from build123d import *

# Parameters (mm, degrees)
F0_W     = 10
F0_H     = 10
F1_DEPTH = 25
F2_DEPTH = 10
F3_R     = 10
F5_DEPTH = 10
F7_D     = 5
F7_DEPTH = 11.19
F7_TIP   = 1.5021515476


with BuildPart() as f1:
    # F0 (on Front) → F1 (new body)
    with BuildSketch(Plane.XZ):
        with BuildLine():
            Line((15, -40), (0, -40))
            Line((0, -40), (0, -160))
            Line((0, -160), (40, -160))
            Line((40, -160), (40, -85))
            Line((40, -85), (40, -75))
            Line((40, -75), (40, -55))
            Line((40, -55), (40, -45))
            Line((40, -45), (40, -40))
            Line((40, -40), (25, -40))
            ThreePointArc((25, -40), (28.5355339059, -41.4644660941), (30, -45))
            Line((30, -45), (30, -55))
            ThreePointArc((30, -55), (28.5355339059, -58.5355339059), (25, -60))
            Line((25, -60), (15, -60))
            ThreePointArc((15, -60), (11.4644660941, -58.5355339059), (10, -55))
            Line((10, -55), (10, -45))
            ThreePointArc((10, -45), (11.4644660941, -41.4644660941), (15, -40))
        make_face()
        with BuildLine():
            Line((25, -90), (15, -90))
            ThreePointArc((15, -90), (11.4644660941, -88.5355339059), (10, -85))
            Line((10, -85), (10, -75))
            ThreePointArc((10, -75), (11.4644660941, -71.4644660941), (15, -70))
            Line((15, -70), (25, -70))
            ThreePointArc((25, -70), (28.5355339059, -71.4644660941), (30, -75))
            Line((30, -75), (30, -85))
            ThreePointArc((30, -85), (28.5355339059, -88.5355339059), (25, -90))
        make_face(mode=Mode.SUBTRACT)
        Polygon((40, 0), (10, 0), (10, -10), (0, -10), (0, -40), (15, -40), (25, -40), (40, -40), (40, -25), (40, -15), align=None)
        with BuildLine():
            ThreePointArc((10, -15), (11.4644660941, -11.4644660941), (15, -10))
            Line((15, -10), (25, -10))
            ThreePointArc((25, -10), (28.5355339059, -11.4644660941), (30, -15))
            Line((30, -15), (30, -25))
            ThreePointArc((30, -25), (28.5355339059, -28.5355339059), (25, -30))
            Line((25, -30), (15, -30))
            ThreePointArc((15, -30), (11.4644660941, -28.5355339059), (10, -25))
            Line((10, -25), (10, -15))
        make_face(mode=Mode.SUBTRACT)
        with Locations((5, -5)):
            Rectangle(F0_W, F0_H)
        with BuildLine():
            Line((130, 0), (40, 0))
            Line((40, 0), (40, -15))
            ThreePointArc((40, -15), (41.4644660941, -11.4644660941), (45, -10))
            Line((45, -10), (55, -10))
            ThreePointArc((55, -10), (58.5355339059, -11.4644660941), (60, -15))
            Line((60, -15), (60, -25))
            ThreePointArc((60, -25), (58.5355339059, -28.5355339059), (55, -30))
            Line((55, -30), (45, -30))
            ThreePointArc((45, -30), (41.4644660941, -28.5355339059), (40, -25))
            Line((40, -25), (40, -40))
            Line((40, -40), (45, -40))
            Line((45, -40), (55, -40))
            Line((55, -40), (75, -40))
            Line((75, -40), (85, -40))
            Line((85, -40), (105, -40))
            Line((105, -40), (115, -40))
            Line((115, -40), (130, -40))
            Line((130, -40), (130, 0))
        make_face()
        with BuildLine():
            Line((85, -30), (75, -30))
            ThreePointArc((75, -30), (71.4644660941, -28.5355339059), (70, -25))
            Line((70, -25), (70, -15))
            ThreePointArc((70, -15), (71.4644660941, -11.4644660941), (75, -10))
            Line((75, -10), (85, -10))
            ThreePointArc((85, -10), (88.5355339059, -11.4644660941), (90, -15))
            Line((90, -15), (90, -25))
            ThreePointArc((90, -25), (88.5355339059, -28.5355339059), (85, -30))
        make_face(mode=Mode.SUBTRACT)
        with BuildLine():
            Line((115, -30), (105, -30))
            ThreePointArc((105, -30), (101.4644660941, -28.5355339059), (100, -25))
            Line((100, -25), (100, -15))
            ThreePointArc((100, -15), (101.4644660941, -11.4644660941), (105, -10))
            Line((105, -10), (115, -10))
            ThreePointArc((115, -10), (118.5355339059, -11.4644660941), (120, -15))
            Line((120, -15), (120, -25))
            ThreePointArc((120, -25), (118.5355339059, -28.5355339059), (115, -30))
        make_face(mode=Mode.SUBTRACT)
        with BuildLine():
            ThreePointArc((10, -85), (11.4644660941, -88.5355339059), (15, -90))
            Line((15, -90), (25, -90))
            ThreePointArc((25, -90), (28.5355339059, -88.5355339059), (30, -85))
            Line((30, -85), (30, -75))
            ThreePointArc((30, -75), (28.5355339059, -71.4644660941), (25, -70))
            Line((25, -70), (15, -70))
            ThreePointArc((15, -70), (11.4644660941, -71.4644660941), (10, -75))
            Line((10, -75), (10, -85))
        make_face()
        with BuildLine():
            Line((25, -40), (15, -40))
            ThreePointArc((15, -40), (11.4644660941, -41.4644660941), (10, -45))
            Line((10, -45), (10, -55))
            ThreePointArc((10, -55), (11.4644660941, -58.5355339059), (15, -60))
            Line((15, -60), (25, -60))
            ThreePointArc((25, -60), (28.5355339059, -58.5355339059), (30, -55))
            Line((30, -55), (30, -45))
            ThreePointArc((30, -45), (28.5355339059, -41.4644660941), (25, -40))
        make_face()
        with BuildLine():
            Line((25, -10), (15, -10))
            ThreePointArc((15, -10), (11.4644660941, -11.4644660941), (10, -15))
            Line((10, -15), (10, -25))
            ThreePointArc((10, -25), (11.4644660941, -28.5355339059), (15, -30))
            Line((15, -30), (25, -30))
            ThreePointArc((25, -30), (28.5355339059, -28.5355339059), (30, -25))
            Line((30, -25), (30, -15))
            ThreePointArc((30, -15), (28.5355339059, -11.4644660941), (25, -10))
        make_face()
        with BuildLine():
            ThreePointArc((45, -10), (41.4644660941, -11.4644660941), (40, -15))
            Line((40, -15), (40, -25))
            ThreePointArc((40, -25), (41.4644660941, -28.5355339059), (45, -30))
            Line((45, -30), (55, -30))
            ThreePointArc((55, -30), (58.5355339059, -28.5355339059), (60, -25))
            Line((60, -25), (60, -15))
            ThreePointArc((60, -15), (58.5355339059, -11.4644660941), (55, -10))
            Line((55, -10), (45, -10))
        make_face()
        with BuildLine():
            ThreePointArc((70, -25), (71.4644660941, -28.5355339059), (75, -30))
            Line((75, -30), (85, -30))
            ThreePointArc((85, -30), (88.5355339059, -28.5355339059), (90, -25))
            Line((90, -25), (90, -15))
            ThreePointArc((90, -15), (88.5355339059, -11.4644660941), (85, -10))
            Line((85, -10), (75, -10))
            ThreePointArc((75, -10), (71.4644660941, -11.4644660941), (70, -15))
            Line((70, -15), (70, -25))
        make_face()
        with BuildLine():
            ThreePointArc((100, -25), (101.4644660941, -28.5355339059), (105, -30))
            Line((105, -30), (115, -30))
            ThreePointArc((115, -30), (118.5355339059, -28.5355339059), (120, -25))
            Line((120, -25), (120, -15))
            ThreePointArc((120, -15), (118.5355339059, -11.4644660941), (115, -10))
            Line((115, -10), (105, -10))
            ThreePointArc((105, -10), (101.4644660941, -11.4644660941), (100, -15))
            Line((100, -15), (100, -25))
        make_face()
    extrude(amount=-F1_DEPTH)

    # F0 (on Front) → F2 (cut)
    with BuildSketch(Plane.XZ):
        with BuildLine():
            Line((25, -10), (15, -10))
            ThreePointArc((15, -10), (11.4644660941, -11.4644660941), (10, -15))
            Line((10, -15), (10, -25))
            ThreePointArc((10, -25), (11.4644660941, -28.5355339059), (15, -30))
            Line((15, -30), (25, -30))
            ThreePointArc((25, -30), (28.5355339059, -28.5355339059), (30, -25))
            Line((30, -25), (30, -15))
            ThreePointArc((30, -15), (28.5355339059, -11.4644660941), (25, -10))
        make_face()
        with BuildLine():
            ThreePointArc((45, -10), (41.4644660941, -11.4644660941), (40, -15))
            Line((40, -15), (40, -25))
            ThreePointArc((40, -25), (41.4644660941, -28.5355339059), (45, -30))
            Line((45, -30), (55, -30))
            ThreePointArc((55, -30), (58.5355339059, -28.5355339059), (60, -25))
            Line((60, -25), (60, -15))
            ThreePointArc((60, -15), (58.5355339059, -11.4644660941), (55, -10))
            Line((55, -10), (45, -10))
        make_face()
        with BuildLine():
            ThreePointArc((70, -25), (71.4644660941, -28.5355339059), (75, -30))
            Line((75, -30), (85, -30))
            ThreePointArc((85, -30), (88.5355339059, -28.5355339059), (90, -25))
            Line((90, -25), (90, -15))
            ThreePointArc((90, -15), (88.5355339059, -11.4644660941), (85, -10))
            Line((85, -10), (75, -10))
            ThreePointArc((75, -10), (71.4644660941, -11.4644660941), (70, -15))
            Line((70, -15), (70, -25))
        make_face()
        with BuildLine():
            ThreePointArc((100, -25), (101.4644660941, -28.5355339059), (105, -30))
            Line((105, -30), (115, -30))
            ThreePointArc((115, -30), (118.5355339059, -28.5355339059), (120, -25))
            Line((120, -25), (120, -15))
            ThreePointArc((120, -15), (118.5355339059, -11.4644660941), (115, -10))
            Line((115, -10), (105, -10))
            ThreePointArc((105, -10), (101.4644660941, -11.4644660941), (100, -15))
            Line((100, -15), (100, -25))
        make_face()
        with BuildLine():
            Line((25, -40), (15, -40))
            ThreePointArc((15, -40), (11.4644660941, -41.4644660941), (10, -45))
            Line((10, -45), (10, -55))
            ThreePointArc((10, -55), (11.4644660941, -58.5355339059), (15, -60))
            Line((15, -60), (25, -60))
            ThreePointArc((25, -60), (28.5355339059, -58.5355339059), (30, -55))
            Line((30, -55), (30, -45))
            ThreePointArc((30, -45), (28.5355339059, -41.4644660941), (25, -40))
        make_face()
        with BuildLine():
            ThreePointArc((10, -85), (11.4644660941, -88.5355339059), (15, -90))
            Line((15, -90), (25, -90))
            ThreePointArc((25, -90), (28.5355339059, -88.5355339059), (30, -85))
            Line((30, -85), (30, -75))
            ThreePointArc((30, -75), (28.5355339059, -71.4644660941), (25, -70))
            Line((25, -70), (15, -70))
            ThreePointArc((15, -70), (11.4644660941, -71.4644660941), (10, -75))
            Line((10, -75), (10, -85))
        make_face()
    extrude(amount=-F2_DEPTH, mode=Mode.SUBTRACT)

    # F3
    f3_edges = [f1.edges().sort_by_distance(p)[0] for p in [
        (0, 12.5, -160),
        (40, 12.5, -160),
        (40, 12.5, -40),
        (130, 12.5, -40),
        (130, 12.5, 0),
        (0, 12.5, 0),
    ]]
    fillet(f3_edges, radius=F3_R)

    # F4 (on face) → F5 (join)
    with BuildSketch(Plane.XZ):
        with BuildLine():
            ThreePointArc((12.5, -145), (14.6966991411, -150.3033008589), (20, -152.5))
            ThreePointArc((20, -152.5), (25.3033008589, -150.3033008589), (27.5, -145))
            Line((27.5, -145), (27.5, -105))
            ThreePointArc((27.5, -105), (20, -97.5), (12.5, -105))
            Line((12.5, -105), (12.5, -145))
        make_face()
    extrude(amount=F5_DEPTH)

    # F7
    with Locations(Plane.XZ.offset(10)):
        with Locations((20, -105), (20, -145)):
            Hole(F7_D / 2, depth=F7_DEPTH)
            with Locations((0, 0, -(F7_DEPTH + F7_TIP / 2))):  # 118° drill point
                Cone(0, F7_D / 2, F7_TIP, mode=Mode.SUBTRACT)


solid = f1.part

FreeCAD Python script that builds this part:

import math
import FreeCAD as App
import Part
import Sketcher

V = App.Vector
Q = App.Units.Quantity


def edges_at(feature, points):
    """Names of the edges that pass closest to the given points."""
    edges = feature.Shape.Edges
    near = lambda p: min(range(len(edges)), key=lambda i: edges[i].distToShape(Part.Vertex(*p))[0])
    return sorted({f"Edge{near(p) + 1}" for p in points})

doc = App.newDocument("Part")
body = doc.addObject("PartDesign::Body", "Body")

sketch1 = doc.addObject("Sketcher::SketchObject", "Sketch")
body.addObject(sketch1)
sketch1.AttachmentSupport = (doc.XZ_Plane, [""])
sketch1.MapMode = "FlatFace"
sketch1.addGeometry(Part.LineSegment(V(0, -160, 0), V(40, -160, 0)), False)
sketch1.addGeometry(Part.LineSegment(V(40, -160, 0), V(40, -40, 0)), False)
sketch1.addGeometry(Part.LineSegment(V(40, -40, 0), V(130, -40, 0)), False)
sketch1.addGeometry(Part.LineSegment(V(130, -40, 0), V(130, 0, 0)), False)
sketch1.addGeometry(Part.LineSegment(V(130, 0, 0), V(0, 0, 0)), False)
sketch1.addGeometry(Part.LineSegment(V(0, 0, 0), V(0, -160, 0)), False)
sketch1.addConstraint(Sketcher.Constraint("Coincident", 0, 2, 1, 1))
sketch1.addConstraint(Sketcher.Constraint("Coincident", 1, 2, 2, 1))
sketch1.addConstraint(Sketcher.Constraint("Coincident", 2, 2, 3, 1))
sketch1.addConstraint(Sketcher.Constraint("Coincident", 3, 2, 4, 1))
sketch1.addConstraint(Sketcher.Constraint("Coincident", 4, 2, 5, 1))
sketch1.addConstraint(Sketcher.Constraint("Coincident", 5, 2, 0, 1))
sketch1.addConstraint(Sketcher.Constraint("Horizontal", 0))
sketch1.addConstraint(Sketcher.Constraint("Vertical", 1))
sketch1.addConstraint(Sketcher.Constraint("Horizontal", 2))
sketch1.addConstraint(Sketcher.Constraint("Vertical", 3))
sketch1.addConstraint(Sketcher.Constraint("Horizontal", 4))
sketch1.addConstraint(Sketcher.Constraint("Vertical", 5))
sketch1.addConstraint(Sketcher.Constraint("Coincident", 4, 2, -1, 1))
sketch1.addConstraint(Sketcher.Constraint("Equal", 0, 3))
sketch1.addConstraint(Sketcher.Constraint("DistanceX", 0, 1, 0, 2, Q("40 mm")))
sketch1.addConstraint(Sketcher.Constraint("DistanceX", 2, 1, 2, 2, Q("90 mm")))
sketch1.addConstraint(Sketcher.Constraint("DistanceY", 1, 1, 1, 2, Q("120 mm")))
pad1 = doc.addObject("PartDesign::Pad", "Pad")
body.addObject(pad1)
pad1.Profile = sketch1
pad1.Length = 25
pad1.Reversed = True

sketch2 = doc.addObject("Sketcher::SketchObject", "Sketch001")
body.addObject(sketch2)
sketch2.AttachmentSupport = (doc.XZ_Plane, [""])
sketch2.MapMode = "FlatFace"
sketch2.addGeometry(Part.LineSegment(V(25, -10, 0), V(15, -10, 0)), False)
sketch2.addGeometry(Part.ArcOfCircle(Part.Circle(V(15, -15, 0), V(0, 0, 1), 5), math.radians(90), math.radians(180)), False)
sketch2.addGeometry(Part.LineSegment(V(10, -15, 0), V(10, -25, 0)), False)
sketch2.addGeometry(Part.ArcOfCircle(Part.Circle(V(15, -25, 0), V(0, 0, 1), 5), math.radians(180), math.radians(270)), False)
sketch2.addGeometry(Part.LineSegment(V(15, -30, 0), V(25, -30, 0)), False)
sketch2.addGeometry(Part.ArcOfCircle(Part.Circle(V(25, -25, 0), V(0, 0, 1), 5), math.radians(-90), math.radians(0)), False)
sketch2.addGeometry(Part.LineSegment(V(30, -25, 0), V(30, -15, 0)), False)
sketch2.addGeometry(Part.ArcOfCircle(Part.Circle(V(25, -15, 0), V(0, 0, 1), 5), math.radians(0), math.radians(90)), False)
sketch2.addGeometry(Part.ArcOfCircle(Part.Circle(V(45, -15, 0), V(0, 0, 1), 5), math.radians(90), math.radians(180)), False)
sketch2.addGeometry(Part.LineSegment(V(40, -15, 0), V(40, -25, 0)), False)
sketch2.addGeometry(Part.ArcOfCircle(Part.Circle(V(45, -25, 0), V(0, 0, 1), 5), math.radians(180), math.radians(270)), False)
sketch2.addGeometry(Part.LineSegment(V(45, -30, 0), V(55, -30, 0)), False)
sketch2.addGeometry(Part.ArcOfCircle(Part.Circle(V(55, -25, 0), V(0, 0, 1), 5), math.radians(-90), math.radians(0)), False)
sketch2.addGeometry(Part.LineSegment(V(60, -25, 0), V(60, -15, 0)), False)
sketch2.addGeometry(Part.ArcOfCircle(Part.Circle(V(55, -15, 0), V(0, 0, 1), 5), math.radians(0), math.radians(90)), False)
sketch2.addGeometry(Part.LineSegment(V(55, -10, 0), V(45, -10, 0)), False)
sketch2.addGeometry(Part.ArcOfCircle(Part.Circle(V(75, -25, 0), V(0, 0, 1), 5), math.radians(180), math.radians(270)), False)
sketch2.addGeometry(Part.LineSegment(V(75, -30, 0), V(85, -30, 0)), False)
sketch2.addGeometry(Part.ArcOfCircle(Part.Circle(V(85, -25, 0), V(0, 0, 1), 5), math.radians(-90), math.radians(0)), False)
sketch2.addGeometry(Part.LineSegment(V(90, -25, 0), V(90, -15, 0)), False)
sketch2.addGeometry(Part.ArcOfCircle(Part.Circle(V(85, -15, 0), V(0, 0, 1), 5), math.radians(0), math.radians(90)), False)
sketch2.addGeometry(Part.LineSegment(V(85, -10, 0), V(75, -10, 0)), False)
sketch2.addGeometry(Part.ArcOfCircle(Part.Circle(V(75, -15, 0), V(0, 0, 1), 5), math.radians(90), math.radians(180)), False)
sketch2.addGeometry(Part.LineSegment(V(70, -15, 0), V(70, -25, 0)), False)
sketch2.addGeometry(Part.ArcOfCircle(Part.Circle(V(105, -25, 0), V(0, 0, 1), 5), math.radians(180), math.radians(270)), False)
sketch2.addGeometry(Part.LineSegment(V(105, -30, 0), V(115, -30, 0)), False)
sketch2.addGeometry(Part.ArcOfCircle(Part.Circle(V(115, -25, 0), V(0, 0, 1), 5), math.radians(-90), math.radians(0)), False)
sketch2.addGeometry(Part.LineSegment(V(120, -25, 0), V(120, -15, 0)), False)
sketch2.addGeometry(Part.ArcOfCircle(Part.Circle(V(115, -15, 0), V(0, 0, 1), 5), math.radians(0), math.radians(90)), False)
sketch2.addGeometry(Part.LineSegment(V(115, -10, 0), V(105, -10, 0)), False)
sketch2.addGeometry(Part.ArcOfCircle(Part.Circle(V(105, -15, 0), V(0, 0, 1), 5), math.radians(90), math.radians(180)), False)
sketch2.addGeometry(Part.LineSegment(V(100, -15, 0), V(100, -25, 0)), False)
sketch2.addGeometry(Part.LineSegment(V(25, -40, 0), V(15, -40, 0)), False)
sketch2.addGeometry(Part.ArcOfCircle(Part.Circle(V(15, -45, 0), V(0, 0, 1), 5), math.radians(90), math.radians(180)), False)
sketch2.addGeometry(Part.LineSegment(V(10, -45, 0), V(10, -55, 0)), False)
sketch2.addGeometry(Part.ArcOfCircle(Part.Circle(V(15, -55, 0), V(0, 0, 1), 5), math.radians(180), math.radians(270)), False)
sketch2.addGeometry(Part.LineSegment(V(15, -60, 0), V(25, -60, 0)), False)
sketch2.addGeometry(Part.ArcOfCircle(Part.Circle(V(25, -55, 0), V(0, 0, 1), 5), math.radians(-90), math.radians(0)), False)
sketch2.addGeometry(Part.LineSegment(V(30, -55, 0), V(30, -45, 0)), False)
sketch2.addGeometry(Part.ArcOfCircle(Part.Circle(V(25, -45, 0), V(0, 0, 1), 5), math.radians(0), math.radians(90)), False)
sketch2.addGeometry(Part.ArcOfCircle(Part.Circle(V(15, -85, 0), V(0, 0, 1), 5), math.radians(180), math.radians(270)), False)
sketch2.addGeometry(Part.LineSegment(V(15, -90, 0), V(25, -90, 0)), False)
sketch2.addGeometry(Part.ArcOfCircle(Part.Circle(V(25, -85, 0), V(0, 0, 1), 5), math.radians(-90), math.radians(0)), False)
sketch2.addGeometry(Part.LineSegment(V(30, -85, 0), V(30, -75, 0)), False)
sketch2.addGeometry(Part.ArcOfCircle(Part.Circle(V(25, -75, 0), V(0, 0, 1), 5), math.radians(0), math.radians(90)), False)
sketch2.addGeometry(Part.LineSegment(V(25, -70, 0), V(15, -70, 0)), False)
sketch2.addGeometry(Part.ArcOfCircle(Part.Circle(V(15, -75, 0), V(0, 0, 1), 5), math.radians(90), math.radians(180)), False)
sketch2.addGeometry(Part.LineSegment(V(10, -75, 0), V(10, -85, 0)), False)
sketch2.addConstraint(Sketcher.Constraint("Tangent", 0, 2, 1, 1))
sketch2.addConstraint(Sketcher.Constraint("Tangent", 1, 2, 2, 1))
sketch2.addConstraint(Sketcher.Constraint("Tangent", 2, 2, 3, 1))
sketch2.addConstraint(Sketcher.Constraint("Tangent", 3, 2, 4, 1))
sketch2.addConstraint(Sketcher.Constraint("Tangent", 4, 2, 5, 1))
sketch2.addConstraint(Sketcher.Constraint("Tangent", 5, 2, 6, 1))
sketch2.addConstraint(Sketcher.Constraint("Tangent", 6, 2, 7, 1))
sketch2.addConstraint(Sketcher.Constraint("Tangent", 7, 2, 0, 1))
sketch2.addConstraint(Sketcher.Constraint("Tangent", 8, 2, 9, 1))
sketch2.addConstraint(Sketcher.Constraint("Tangent", 9, 2, 10, 1))
sketch2.addConstraint(Sketcher.Constraint("Tangent", 10, 2, 11, 1))
sketch2.addConstraint(Sketcher.Constraint("Tangent", 11, 2, 12, 1))
sketch2.addConstraint(Sketcher.Constraint("Tangent", 12, 2, 13, 1))
sketch2.addConstraint(Sketcher.Constraint("Tangent", 13, 2, 14, 1))
sketch2.addConstraint(Sketcher.Constraint("Tangent", 14, 2, 15, 1))
sketch2.addConstraint(Sketcher.Constraint("Tangent", 15, 2, 8, 1))
sketch2.addConstraint(Sketcher.Constraint("Tangent", 16, 2, 17, 1))
sketch2.addConstraint(Sketcher.Constraint("Tangent", 17, 2, 18, 1))
sketch2.addConstraint(Sketcher.Constraint("Tangent", 18, 2, 19, 1))
sketch2.addConstraint(Sketcher.Constraint("Tangent", 19, 2, 20, 1))
sketch2.addConstraint(Sketcher.Constraint("Tangent", 20, 2, 21, 1))
sketch2.addConstraint(Sketcher.Constraint("Tangent", 21, 2, 22, 1))
sketch2.addConstraint(Sketcher.Constraint("Tangent", 22, 2, 23, 1))
sketch2.addConstraint(Sketcher.Constraint("Tangent", 23, 2, 16, 1))
sketch2.addConstraint(Sketcher.Constraint("Tangent", 24, 2, 25, 1))
sketch2.addConstraint(Sketcher.Constraint("Tangent", 25, 2, 26, 1))
sketch2.addConstraint(Sketcher.Constraint("Tangent", 26, 2, 27, 1))
sketch2.addConstraint(Sketcher.Constraint("Tangent", 27, 2, 28, 1))
sketch2.addConstraint(Sketcher.Constraint("Tangent", 28, 2, 29, 1))
sketch2.addConstraint(Sketcher.Constraint("Tangent", 29, 2, 30, 1))
sketch2.addConstraint(Sketcher.Constraint("Tangent", 30, 2, 31, 1))
sketch2.addConstraint(Sketcher.Constraint("Tangent", 31, 2, 24, 1))
sketch2.addConstraint(Sketcher.Constraint("Tangent", 32, 2, 33, 1))
sketch2.addConstraint(Sketcher.Constraint("Tangent", 33, 2, 34, 1))
sketch2.addConstraint(Sketcher.Constraint("Tangent", 34, 2, 35, 1))
sketch2.addConstraint(Sketcher.Constraint("Tangent", 35, 2, 36, 1))
sketch2.addConstraint(Sketcher.Constraint("Tangent", 36, 2, 37, 1))
sketch2.addConstraint(Sketcher.Constraint("Tangent", 37, 2, 38, 1))
sketch2.addConstraint(Sketcher.Constraint("Tangent", 38, 2, 39, 1))
sketch2.addConstraint(Sketcher.Constraint("Tangent", 39, 2, 32, 1))
sketch2.addConstraint(Sketcher.Constraint("Tangent", 40, 2, 41, 1))
sketch2.addConstraint(Sketcher.Constraint("Tangent", 41, 2, 42, 1))
sketch2.addConstraint(Sketcher.Constraint("Tangent", 42, 2, 43, 1))
sketch2.addConstraint(Sketcher.Constraint("Tangent", 43, 2, 44, 1))
sketch2.addConstraint(Sketcher.Constraint("Tangent", 44, 2, 45, 1))
sketch2.addConstraint(Sketcher.Constraint("Tangent", 45, 2, 46, 1))
sketch2.addConstraint(Sketcher.Constraint("Tangent", 46, 2, 47, 1))
sketch2.addConstraint(Sketcher.Constraint("Tangent", 47, 2, 40, 1))
sketch2.addConstraint(Sketcher.Constraint("Horizontal", 0))
sketch2.addConstraint(Sketcher.Constraint("Vertical", 2))
sketch2.addConstraint(Sketcher.Constraint("Horizontal", 4))
sketch2.addConstraint(Sketcher.Constraint("Vertical", 6))
sketch2.addConstraint(Sketcher.Constraint("Vertical", 9))
sketch2.addConstraint(Sketcher.Constraint("Horizontal", 11))
sketch2.addConstraint(Sketcher.Constraint("Vertical", 13))
sketch2.addConstraint(Sketcher.Constraint("Horizontal", 15))
sketch2.addConstraint(Sketcher.Constraint("Horizontal", 17))
sketch2.addConstraint(Sketcher.Constraint("Vertical", 19))
sketch2.addConstraint(Sketcher.Constraint("Horizontal", 21))
sketch2.addConstraint(Sketcher.Constraint("Vertical", 23))
sketch2.addConstraint(Sketcher.Constraint("Horizontal", 25))
sketch2.addConstraint(Sketcher.Constraint("Vertical", 27))
sketch2.addConstraint(Sketcher.Constraint("Horizontal", 29))
sketch2.addConstraint(Sketcher.Constraint("Vertical", 31))
sketch2.addConstraint(Sketcher.Constraint("Horizontal", 32))
sketch2.addConstraint(Sketcher.Constraint("Vertical", 34))
sketch2.addConstraint(Sketcher.Constraint("Horizontal", 36))
sketch2.addConstraint(Sketcher.Constraint("Vertical", 38))
sketch2.addConstraint(Sketcher.Constraint("Horizontal", 41))
sketch2.addConstraint(Sketcher.Constraint("Vertical", 43))
sketch2.addConstraint(Sketcher.Constraint("Horizontal", 45))
sketch2.addConstraint(Sketcher.Constraint("Vertical", 47))
sketch2.addConstraint(Sketcher.Constraint("Equal", 1, 3))
sketch2.addConstraint(Sketcher.Constraint("Equal", 3, 5))
sketch2.addConstraint(Sketcher.Constraint("Equal", 5, 7))
sketch2.addConstraint(Sketcher.Constraint("Equal", 7, 8))
sketch2.addConstraint(Sketcher.Constraint("Equal", 8, 10))
sketch2.addConstraint(Sketcher.Constraint("Equal", 10, 12))
sketch2.addConstraint(Sketcher.Constraint("Equal", 12, 14))
sketch2.addConstraint(Sketcher.Constraint("Equal", 14, 16))
sketch2.addConstraint(Sketcher.Constraint("Equal", 16, 18))
sketch2.addConstraint(Sketcher.Constraint("Equal", 18, 20))
sketch2.addConstraint(Sketcher.Constraint("Equal", 20, 22))
sketch2.addConstraint(Sketcher.Constraint("Equal", 22, 24))
sketch2.addConstraint(Sketcher.Constraint("Equal", 24, 26))
sketch2.addConstraint(Sketcher.Constraint("Equal", 26, 28))
sketch2.addConstraint(Sketcher.Constraint("Equal", 28, 30))
sketch2.addConstraint(Sketcher.Constraint("Equal", 30, 33))
sketch2.addConstraint(Sketcher.Constraint("Equal", 33, 35))
sketch2.addConstraint(Sketcher.Constraint("Equal", 35, 37))
sketch2.addConstraint(Sketcher.Constraint("Equal", 37, 39))
sketch2.addConstraint(Sketcher.Constraint("Equal", 39, 40))
sketch2.addConstraint(Sketcher.Constraint("Equal", 40, 42))
sketch2.addConstraint(Sketcher.Constraint("Equal", 42, 44))
sketch2.addConstraint(Sketcher.Constraint("Equal", 44, 46))
sketch2.addConstraint(Sketcher.Constraint("Horizontal", 7, 3, 8, 3))
sketch2.addConstraint(Sketcher.Constraint("Horizontal", 5, 3, 10, 3))
sketch2.addConstraint(Sketcher.Constraint("Horizontal", 12, 3, 16, 3))
sketch2.addConstraint(Sketcher.Constraint("Horizontal", 14, 3, 20, 3))
sketch2.addConstraint(Sketcher.Constraint("Horizontal", 18, 3, 24, 3))
sketch2.addConstraint(Sketcher.Constraint("Horizontal", 22, 3, 28, 3))
sketch2.addConstraint(Sketcher.Constraint("Vertical", 3, 3, 33, 3))
sketch2.addConstraint(Sketcher.Constraint("Vertical", 7, 3, 37, 3))
sketch2.addConstraint(Sketcher.Constraint("Vertical", 35, 3, 40, 3))
sketch2.addConstraint(Sketcher.Constraint("Vertical", 39, 3, 42, 3))
sketch2.addConstraint(Sketcher.Constraint("Equal", 4, 11))
sketch2.addConstraint(Sketcher.Constraint("Equal", 15, 17))
sketch2.addConstraint(Sketcher.Constraint("Equal", 21, 25))
sketch2.addConstraint(Sketcher.Constraint("Equal", 45, 2))
sketch2.addConstraint(Sketcher.Constraint("Equal", 31, 34))
sketch2.addConstraint(Sketcher.Constraint("Equal", 38, 43))
sketch2.addConstraint(Sketcher.Constraint("Radius", 1, Q("5 mm")))
sketch2.addConstraint(Sketcher.Constraint("DistanceX", 0, 2, 0, 1, Q("10 mm")))
sketch2.addConstraint(Sketcher.Constraint("DistanceX", -1, 1, 1, 3, Q("15 mm")))
sketch2.addConstraint(Sketcher.Constraint("DistanceY", 1, 3, -1, 1, Q("15 mm")))
sketch2.addConstraint(Sketcher.Constraint("DistanceX", -1, 1, 8, 3, Q("45 mm")))
sketch2.addConstraint(Sketcher.Constraint("DistanceX", -1, 1, 16, 3, Q("75 mm")))
sketch2.addConstraint(Sketcher.Constraint("DistanceX", -1, 1, 24, 3, Q("105 mm")))
sketch2.addConstraint(Sketcher.Constraint("DistanceY", 33, 3, -1, 1, Q("45 mm")))
sketch2.addConstraint(Sketcher.Constraint("DistanceY", 40, 3, -1, 1, Q("85 mm")))
pocket1 = doc.addObject("PartDesign::Pocket", "Pocket")
body.addObject(pocket1)
pocket1.Profile = sketch2
pocket1.Length = 10
doc.recompute()

fillet = doc.addObject("PartDesign::Fillet", "Fillet")
body.addObject(fillet)
fillet.Base = (pocket1, edges_at(pocket1, [
    (0, 12.5, -160),
    (40, 12.5, -160),
    (40, 12.5, -40),
    (130, 12.5, -40),
    (130, 12.5, 0),
    (0, 12.5, 0),
]))
fillet.Radius = 10

sketch3 = doc.addObject("Sketcher::SketchObject", "Sketch002")
body.addObject(sketch3)
sketch3.AttachmentSupport = (doc.XZ_Plane, [""])
sketch3.MapMode = "FlatFace"
sketch3.addGeometry(Part.ArcOfCircle(Part.Circle(V(20, -145, 0), V(0, 0, 1), 7.5), math.radians(180), math.radians(360)), False)
sketch3.addGeometry(Part.LineSegment(V(27.5, -145, 0), V(27.5, -105, 0)), False)
sketch3.addGeometry(Part.ArcOfCircle(Part.Circle(V(20, -105, 0), V(0, 0, 1), 7.5), math.radians(0), math.radians(180)), False)
sketch3.addGeometry(Part.LineSegment(V(12.5, -105, 0), V(12.5, -145, 0)), False)
sketch3.addConstraint(Sketcher.Constraint("Tangent", 0, 2, 1, 1))
sketch3.addConstraint(Sketcher.Constraint("Tangent", 1, 2, 2, 1))
sketch3.addConstraint(Sketcher.Constraint("Tangent", 2, 2, 3, 1))
sketch3.addConstraint(Sketcher.Constraint("Tangent", 3, 2, 0, 1))
sketch3.addConstraint(Sketcher.Constraint("Vertical", 1))
sketch3.addConstraint(Sketcher.Constraint("Vertical", 3))
sketch3.addConstraint(Sketcher.Constraint("Radius", 0, Q("7.5 mm")))
sketch3.addConstraint(Sketcher.Constraint("DistanceY", 1, 1, 1, 2, Q("40 mm")))
sketch3.addConstraint(Sketcher.Constraint("DistanceX", -1, 1, 0, 3, Q("20 mm")))
sketch3.addConstraint(Sketcher.Constraint("DistanceY", 0, 3, -1, 1, Q("145 mm")))
pad2 = doc.addObject("PartDesign::Pad", "Pad001")
body.addObject(pad2)
pad2.Profile = sketch3
pad2.Length = 10

sketch4 = doc.addObject("Sketcher::SketchObject", "Sketch003")
body.addObject(sketch4)
sketch4.AttachmentSupport = (doc.XZ_Plane, [""])
sketch4.MapMode = "FlatFace"
sketch4.AttachmentOffset = App.Placement(V(0, 0, 10), App.Rotation())
sketch4.addGeometry(Part.Circle(V(20, -105, 0), V(0, 0, 1), 2.5), False)
sketch4.addGeometry(Part.Circle(V(20, -145, 0), V(0, 0, 1), 2.5), False)
sketch4.addConstraint(Sketcher.Constraint("Equal", 0, 1))
sketch4.addConstraint(Sketcher.Constraint("Vertical", 0, 3, 1, 3))
sketch4.addConstraint(Sketcher.Constraint("Diameter", 0, Q("5 mm")))
sketch4.addConstraint(Sketcher.Constraint("DistanceX", -1, 1, 0, 3, Q("20 mm")))
sketch4.addConstraint(Sketcher.Constraint("DistanceY", 0, 3, -1, 1, Q("105 mm")))
sketch4.addConstraint(Sketcher.Constraint("DistanceY", 1, 3, -1, 1, Q("145 mm")))
doc.recompute()
hole = doc.addObject("PartDesign::Hole", "Hole")
body.addObject(hole)
hole.Profile = sketch4
hole.ThreadType = "None"
hole.Diameter = 5
hole.DepthType = "Dimension"
hole.Depth = 11.19
hole.DrillPoint = "Angled"
hole.DrillPointAngle = 118

doc.recompute()
